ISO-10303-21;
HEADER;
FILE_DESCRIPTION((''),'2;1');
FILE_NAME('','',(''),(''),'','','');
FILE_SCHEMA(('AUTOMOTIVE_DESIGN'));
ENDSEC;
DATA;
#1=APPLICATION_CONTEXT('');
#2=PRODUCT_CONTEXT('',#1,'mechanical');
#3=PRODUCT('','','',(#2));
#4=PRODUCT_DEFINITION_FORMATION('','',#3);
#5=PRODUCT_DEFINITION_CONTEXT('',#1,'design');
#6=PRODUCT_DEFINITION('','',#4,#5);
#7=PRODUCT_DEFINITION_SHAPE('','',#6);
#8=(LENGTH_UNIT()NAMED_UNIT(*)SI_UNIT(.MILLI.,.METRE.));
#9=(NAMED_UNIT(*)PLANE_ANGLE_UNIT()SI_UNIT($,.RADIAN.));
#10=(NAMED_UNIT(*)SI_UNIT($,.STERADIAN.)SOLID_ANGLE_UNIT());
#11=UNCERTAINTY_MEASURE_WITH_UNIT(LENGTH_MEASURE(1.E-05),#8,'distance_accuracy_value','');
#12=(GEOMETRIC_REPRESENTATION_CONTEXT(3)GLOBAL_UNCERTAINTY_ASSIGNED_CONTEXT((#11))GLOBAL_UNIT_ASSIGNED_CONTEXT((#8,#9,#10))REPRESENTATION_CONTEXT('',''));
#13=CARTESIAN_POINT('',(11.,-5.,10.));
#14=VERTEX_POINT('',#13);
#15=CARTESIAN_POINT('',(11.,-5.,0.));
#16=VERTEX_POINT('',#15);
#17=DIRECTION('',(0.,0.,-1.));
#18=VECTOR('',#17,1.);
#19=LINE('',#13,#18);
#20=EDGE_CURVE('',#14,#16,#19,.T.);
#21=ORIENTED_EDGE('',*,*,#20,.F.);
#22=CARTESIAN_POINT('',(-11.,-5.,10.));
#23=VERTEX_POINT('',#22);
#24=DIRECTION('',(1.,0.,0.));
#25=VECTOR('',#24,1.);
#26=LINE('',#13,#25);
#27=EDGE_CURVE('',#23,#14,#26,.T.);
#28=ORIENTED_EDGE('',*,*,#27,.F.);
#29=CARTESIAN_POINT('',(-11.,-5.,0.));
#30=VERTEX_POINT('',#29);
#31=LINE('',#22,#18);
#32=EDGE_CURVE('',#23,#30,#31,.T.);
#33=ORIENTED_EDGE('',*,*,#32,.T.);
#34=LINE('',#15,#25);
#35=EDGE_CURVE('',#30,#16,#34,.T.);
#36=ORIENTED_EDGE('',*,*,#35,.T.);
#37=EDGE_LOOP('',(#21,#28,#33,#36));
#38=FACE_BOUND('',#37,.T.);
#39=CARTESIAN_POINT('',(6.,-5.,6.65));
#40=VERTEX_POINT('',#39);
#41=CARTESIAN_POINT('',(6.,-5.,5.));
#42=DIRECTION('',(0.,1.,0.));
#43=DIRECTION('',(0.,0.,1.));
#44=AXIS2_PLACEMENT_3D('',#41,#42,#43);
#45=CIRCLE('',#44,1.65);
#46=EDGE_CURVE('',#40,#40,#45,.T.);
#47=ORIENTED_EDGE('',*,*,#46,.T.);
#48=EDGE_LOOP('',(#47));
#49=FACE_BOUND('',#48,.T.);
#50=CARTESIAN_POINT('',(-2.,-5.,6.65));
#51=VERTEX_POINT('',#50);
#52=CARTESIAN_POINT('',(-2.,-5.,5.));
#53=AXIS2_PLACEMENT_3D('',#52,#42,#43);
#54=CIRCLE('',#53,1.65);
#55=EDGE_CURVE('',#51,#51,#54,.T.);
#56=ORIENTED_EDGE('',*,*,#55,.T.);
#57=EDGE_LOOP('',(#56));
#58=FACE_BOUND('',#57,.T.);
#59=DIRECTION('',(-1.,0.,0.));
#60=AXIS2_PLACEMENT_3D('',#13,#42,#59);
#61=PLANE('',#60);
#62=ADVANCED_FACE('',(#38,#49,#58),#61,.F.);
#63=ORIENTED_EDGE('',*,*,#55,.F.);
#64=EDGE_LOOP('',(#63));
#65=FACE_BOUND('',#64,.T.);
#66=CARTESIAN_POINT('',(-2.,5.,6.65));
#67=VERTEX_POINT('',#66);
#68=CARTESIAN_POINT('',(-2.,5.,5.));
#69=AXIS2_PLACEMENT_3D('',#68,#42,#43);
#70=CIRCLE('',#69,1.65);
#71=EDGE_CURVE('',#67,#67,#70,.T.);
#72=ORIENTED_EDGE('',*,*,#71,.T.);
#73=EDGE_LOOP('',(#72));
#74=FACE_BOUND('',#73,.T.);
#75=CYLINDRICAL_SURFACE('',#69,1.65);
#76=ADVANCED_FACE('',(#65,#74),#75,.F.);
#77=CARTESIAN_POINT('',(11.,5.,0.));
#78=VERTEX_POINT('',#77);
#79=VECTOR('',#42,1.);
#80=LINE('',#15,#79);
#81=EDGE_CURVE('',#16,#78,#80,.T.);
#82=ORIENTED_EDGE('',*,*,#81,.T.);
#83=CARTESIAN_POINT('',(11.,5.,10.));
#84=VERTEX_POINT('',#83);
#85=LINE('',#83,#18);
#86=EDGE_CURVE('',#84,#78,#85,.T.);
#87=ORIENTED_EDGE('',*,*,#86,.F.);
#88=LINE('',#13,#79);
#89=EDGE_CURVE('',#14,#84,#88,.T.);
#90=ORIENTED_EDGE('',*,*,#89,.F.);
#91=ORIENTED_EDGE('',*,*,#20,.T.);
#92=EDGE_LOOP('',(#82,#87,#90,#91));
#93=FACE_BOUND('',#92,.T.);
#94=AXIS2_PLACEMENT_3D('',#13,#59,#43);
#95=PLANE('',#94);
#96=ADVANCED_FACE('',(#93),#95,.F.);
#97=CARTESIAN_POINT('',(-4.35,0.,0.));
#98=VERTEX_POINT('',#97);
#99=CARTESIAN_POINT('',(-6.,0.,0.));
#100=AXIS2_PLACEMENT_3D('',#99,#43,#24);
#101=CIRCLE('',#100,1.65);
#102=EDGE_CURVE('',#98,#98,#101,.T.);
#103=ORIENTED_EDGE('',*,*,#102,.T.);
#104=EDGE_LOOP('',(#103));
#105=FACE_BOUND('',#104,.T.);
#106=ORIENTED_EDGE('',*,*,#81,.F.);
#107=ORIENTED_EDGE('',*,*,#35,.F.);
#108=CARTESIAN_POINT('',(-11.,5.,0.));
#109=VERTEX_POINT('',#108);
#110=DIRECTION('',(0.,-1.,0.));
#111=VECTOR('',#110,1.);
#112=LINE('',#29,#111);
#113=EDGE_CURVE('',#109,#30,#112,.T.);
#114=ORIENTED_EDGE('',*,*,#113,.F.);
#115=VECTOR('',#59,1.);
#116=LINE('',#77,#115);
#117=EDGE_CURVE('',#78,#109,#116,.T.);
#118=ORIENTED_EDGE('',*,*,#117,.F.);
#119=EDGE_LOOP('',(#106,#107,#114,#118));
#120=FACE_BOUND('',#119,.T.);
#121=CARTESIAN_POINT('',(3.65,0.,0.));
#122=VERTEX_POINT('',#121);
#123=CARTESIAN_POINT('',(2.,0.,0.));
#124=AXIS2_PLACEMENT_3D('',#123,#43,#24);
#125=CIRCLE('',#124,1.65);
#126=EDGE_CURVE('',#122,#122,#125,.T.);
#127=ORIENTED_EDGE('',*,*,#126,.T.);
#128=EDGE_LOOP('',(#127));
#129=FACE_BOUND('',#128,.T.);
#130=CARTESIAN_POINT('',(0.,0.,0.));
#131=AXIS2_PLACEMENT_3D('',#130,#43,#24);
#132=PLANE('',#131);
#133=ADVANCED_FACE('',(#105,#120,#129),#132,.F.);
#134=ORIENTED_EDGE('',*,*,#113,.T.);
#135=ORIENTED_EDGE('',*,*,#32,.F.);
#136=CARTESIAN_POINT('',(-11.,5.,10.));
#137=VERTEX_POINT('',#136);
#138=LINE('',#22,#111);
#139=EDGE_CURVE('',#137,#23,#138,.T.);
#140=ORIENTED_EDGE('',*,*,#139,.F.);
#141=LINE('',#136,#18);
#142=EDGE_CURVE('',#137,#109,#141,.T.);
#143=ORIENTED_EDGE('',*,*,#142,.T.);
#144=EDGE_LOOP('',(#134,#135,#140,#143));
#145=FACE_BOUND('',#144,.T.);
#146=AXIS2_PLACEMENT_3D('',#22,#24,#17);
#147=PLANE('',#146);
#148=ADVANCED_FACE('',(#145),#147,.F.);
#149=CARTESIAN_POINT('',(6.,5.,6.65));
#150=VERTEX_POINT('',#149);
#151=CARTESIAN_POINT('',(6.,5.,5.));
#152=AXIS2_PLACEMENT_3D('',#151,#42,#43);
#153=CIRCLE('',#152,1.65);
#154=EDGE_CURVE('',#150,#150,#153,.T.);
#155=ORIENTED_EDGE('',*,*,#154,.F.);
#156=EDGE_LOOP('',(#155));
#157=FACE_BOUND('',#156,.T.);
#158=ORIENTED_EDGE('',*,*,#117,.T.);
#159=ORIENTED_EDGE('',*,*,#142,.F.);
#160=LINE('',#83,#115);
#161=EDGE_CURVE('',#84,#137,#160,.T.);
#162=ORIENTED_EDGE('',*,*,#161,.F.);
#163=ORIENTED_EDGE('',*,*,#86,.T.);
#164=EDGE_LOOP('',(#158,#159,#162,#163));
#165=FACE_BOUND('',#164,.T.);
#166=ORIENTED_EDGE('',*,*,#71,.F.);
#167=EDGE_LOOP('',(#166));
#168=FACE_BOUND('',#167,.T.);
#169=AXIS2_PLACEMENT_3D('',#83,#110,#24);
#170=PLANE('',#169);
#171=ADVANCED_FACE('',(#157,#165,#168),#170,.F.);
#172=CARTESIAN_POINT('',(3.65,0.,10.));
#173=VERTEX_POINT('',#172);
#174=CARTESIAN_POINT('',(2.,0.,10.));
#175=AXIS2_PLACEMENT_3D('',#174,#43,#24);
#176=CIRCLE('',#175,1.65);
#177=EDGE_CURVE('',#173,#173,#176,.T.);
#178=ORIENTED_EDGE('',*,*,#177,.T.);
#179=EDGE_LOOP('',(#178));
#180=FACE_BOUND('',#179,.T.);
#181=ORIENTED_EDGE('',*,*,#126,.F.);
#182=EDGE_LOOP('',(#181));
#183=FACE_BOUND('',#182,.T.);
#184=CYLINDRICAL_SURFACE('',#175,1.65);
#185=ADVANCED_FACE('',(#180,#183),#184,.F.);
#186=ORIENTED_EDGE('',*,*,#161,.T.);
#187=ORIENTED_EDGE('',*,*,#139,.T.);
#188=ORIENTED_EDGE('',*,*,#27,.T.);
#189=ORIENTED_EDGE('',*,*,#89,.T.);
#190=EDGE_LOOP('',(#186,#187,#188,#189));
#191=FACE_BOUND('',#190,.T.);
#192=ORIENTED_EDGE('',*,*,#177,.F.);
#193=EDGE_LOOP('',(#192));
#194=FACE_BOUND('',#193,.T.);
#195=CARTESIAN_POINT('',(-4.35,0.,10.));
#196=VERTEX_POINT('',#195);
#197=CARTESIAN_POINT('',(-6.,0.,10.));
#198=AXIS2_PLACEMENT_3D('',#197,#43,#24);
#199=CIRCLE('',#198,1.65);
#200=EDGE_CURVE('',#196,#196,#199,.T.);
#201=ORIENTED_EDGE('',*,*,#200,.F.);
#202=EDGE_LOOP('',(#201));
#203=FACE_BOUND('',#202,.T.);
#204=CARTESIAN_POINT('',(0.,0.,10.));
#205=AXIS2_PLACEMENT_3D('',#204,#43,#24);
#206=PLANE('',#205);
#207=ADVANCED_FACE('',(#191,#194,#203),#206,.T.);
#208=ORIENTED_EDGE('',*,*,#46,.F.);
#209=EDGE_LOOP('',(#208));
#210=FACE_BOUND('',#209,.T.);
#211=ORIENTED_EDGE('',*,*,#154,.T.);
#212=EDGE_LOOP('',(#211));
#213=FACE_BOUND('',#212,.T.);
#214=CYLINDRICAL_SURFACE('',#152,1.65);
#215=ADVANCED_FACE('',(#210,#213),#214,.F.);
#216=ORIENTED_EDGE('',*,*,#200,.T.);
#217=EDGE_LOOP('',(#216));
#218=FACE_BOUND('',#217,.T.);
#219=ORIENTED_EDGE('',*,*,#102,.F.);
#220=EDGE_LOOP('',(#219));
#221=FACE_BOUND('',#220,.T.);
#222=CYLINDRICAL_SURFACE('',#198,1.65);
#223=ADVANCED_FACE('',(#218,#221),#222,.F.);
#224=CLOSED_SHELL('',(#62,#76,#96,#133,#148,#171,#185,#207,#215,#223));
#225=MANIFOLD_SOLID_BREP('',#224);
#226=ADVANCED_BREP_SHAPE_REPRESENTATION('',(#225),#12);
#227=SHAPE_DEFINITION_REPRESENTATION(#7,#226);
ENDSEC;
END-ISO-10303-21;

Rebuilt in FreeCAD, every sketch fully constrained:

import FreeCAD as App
import Part
import Sketcher
Q = App.Units.Quantity


def add_polygon(sketch, points):
    """Adds a closed chain of lines whose ends are joined by coincident constraints."""
    first, n = sketch.GeometryCount, len(points)
    for a, b in zip(points, points[1:] + points[:1]):
        sketch.addGeometry(Part.LineSegment(App.Vector(*a, 0), App.Vector(*b, 0)), False)
    for i in range(n):
        sketch.addConstraint(Sketcher.Constraint("Coincident", first + i, 2, first + (i + 1) % n, 1))

doc = App.newDocument("Part")
body = doc.addObject("PartDesign::Body", "Body")

# Sketch on XY plane
sketch1 = body.newObject("Sketcher::SketchObject", "Sketch")
sketch1.AttachmentSupport = (doc.getObject("XY_Plane"), [""])
sketch1.MapMode = "FlatFace"
add_polygon(sketch1, [(-11, 5), (-11, -5), (11, -5), (11, 5)])  # lines 0-3
sketch1.addConstraint(Sketcher.Constraint("Vertical", 0))
sketch1.addConstraint(Sketcher.Constraint("Horizontal", 1))
sketch1.addConstraint(Sketcher.Constraint("Vertical", 2))
sketch1.addConstraint(Sketcher.Constraint("Horizontal", 3))
sketch1.addConstraint(Sketcher.Constraint("Symmetric", 0, 2, 2, 2, -1, 1))
sketch1.addConstraint(Sketcher.Constraint("DistanceX", 1, 1, 1, 2, Q("22 mm")))
sketch1.addConstraint(Sketcher.Constraint("DistanceY", 0, 2, 0, 1, Q("10 mm")))
pad1 = body.newObject("PartDesign::Pad", "Pad")
pad1.Profile = sketch1
pad1.Length = 10

# Sketch on XY plane
sketch2 = body.newObject("Sketcher::SketchObject", "Sketch001")
sketch2.AttachmentSupport = (doc.getObject("XY_Plane"), [""])
sketch2.MapMode = "FlatFace"
sketch2.AttachmentOffset = App.Placement(App.Vector(0, 0, 10), App.Rotation())
sketch2.addGeometry(Part.Circle(App.Vector(-6, 0, 0), App.Vector(0, 0, 1), 1.6), False)
sketch2.addGeometry(Part.Circle(App.Vector(2, 0, 0), App.Vector(0, 0, 1), 1.6), False)
sketch2.addConstraint(Sketcher.Constraint("Equal", 0, 1))
sketch2.addConstraint(Sketcher.Constraint("PointOnObject", 0, 3, -1))
sketch2.addConstraint(Sketcher.Constraint("PointOnObject", 1, 3, -1))
sketch2.addConstraint(Sketcher.Constraint("Diameter", 0, Q("3.3 mm")))
sketch2.addConstraint(Sketcher.Constraint("DistanceX", 0, 3, -1, 1, Q("6 mm")))
sketch2.addConstraint(Sketcher.Constraint("DistanceX", -1, 1, 1, 3, Q("2 mm")))
doc.recompute()
hole = body.newObject("PartDesign::Hole", "Hole")
hole.Profile = sketch2
hole.ThreadType = "None"
hole.Diameter = 3.3
hole.DepthType = "ThroughAll"

# Sketch on XZ plane
sketch3 = body.newObject("Sketcher::SketchObject", "Sketch002")
sketch3.AttachmentSupport = (doc.getObject("XZ_Plane"), [""])
sketch3.MapMode = "FlatFace"
sketch3.AttachmentOffset = App.Placement(App.Vector(0, 0, -5), App.Rotation())
sketch3.addGeometry(Part.Circle(App.Vector(-2, 5, 0), App.Vector(0, 0, 1), 1.6), False)
sketch3.addGeometry(Part.Circle(App.Vector(6, 5, 0), App.Vector(0, 0, 1), 1.6), False)
sketch3.addConstraint(Sketcher.Constraint("Equal", 0, 1))
sketch3.addConstraint(Sketcher.Constraint("Horizontal", 0, 3, 1, 3))
sketch3.addConstraint(Sketcher.Constraint("Diameter", 0, Q("3.3 mm")))
sketch3.addConstraint(Sketcher.Constraint("DistanceX", 0, 3, -1, 1, Q("2 mm")))
sketch3.addConstraint(Sketcher.Constraint("DistanceY", -1, 1, 0, 3, Q("5 mm")))
sketch3.addConstraint(Sketcher.Constraint("DistanceX", -1, 1, 1, 3, Q("6 mm")))
doc.recompute()
hole2 = body.newObject("PartDesign::Hole", "Hole001")
hole2.Profile = sketch3
hole2.ThreadType = "None"
hole2.Diameter = 3.3
hole2.DepthType = "ThroughAll"
hole2.Reversed = True

doc.recompute()
